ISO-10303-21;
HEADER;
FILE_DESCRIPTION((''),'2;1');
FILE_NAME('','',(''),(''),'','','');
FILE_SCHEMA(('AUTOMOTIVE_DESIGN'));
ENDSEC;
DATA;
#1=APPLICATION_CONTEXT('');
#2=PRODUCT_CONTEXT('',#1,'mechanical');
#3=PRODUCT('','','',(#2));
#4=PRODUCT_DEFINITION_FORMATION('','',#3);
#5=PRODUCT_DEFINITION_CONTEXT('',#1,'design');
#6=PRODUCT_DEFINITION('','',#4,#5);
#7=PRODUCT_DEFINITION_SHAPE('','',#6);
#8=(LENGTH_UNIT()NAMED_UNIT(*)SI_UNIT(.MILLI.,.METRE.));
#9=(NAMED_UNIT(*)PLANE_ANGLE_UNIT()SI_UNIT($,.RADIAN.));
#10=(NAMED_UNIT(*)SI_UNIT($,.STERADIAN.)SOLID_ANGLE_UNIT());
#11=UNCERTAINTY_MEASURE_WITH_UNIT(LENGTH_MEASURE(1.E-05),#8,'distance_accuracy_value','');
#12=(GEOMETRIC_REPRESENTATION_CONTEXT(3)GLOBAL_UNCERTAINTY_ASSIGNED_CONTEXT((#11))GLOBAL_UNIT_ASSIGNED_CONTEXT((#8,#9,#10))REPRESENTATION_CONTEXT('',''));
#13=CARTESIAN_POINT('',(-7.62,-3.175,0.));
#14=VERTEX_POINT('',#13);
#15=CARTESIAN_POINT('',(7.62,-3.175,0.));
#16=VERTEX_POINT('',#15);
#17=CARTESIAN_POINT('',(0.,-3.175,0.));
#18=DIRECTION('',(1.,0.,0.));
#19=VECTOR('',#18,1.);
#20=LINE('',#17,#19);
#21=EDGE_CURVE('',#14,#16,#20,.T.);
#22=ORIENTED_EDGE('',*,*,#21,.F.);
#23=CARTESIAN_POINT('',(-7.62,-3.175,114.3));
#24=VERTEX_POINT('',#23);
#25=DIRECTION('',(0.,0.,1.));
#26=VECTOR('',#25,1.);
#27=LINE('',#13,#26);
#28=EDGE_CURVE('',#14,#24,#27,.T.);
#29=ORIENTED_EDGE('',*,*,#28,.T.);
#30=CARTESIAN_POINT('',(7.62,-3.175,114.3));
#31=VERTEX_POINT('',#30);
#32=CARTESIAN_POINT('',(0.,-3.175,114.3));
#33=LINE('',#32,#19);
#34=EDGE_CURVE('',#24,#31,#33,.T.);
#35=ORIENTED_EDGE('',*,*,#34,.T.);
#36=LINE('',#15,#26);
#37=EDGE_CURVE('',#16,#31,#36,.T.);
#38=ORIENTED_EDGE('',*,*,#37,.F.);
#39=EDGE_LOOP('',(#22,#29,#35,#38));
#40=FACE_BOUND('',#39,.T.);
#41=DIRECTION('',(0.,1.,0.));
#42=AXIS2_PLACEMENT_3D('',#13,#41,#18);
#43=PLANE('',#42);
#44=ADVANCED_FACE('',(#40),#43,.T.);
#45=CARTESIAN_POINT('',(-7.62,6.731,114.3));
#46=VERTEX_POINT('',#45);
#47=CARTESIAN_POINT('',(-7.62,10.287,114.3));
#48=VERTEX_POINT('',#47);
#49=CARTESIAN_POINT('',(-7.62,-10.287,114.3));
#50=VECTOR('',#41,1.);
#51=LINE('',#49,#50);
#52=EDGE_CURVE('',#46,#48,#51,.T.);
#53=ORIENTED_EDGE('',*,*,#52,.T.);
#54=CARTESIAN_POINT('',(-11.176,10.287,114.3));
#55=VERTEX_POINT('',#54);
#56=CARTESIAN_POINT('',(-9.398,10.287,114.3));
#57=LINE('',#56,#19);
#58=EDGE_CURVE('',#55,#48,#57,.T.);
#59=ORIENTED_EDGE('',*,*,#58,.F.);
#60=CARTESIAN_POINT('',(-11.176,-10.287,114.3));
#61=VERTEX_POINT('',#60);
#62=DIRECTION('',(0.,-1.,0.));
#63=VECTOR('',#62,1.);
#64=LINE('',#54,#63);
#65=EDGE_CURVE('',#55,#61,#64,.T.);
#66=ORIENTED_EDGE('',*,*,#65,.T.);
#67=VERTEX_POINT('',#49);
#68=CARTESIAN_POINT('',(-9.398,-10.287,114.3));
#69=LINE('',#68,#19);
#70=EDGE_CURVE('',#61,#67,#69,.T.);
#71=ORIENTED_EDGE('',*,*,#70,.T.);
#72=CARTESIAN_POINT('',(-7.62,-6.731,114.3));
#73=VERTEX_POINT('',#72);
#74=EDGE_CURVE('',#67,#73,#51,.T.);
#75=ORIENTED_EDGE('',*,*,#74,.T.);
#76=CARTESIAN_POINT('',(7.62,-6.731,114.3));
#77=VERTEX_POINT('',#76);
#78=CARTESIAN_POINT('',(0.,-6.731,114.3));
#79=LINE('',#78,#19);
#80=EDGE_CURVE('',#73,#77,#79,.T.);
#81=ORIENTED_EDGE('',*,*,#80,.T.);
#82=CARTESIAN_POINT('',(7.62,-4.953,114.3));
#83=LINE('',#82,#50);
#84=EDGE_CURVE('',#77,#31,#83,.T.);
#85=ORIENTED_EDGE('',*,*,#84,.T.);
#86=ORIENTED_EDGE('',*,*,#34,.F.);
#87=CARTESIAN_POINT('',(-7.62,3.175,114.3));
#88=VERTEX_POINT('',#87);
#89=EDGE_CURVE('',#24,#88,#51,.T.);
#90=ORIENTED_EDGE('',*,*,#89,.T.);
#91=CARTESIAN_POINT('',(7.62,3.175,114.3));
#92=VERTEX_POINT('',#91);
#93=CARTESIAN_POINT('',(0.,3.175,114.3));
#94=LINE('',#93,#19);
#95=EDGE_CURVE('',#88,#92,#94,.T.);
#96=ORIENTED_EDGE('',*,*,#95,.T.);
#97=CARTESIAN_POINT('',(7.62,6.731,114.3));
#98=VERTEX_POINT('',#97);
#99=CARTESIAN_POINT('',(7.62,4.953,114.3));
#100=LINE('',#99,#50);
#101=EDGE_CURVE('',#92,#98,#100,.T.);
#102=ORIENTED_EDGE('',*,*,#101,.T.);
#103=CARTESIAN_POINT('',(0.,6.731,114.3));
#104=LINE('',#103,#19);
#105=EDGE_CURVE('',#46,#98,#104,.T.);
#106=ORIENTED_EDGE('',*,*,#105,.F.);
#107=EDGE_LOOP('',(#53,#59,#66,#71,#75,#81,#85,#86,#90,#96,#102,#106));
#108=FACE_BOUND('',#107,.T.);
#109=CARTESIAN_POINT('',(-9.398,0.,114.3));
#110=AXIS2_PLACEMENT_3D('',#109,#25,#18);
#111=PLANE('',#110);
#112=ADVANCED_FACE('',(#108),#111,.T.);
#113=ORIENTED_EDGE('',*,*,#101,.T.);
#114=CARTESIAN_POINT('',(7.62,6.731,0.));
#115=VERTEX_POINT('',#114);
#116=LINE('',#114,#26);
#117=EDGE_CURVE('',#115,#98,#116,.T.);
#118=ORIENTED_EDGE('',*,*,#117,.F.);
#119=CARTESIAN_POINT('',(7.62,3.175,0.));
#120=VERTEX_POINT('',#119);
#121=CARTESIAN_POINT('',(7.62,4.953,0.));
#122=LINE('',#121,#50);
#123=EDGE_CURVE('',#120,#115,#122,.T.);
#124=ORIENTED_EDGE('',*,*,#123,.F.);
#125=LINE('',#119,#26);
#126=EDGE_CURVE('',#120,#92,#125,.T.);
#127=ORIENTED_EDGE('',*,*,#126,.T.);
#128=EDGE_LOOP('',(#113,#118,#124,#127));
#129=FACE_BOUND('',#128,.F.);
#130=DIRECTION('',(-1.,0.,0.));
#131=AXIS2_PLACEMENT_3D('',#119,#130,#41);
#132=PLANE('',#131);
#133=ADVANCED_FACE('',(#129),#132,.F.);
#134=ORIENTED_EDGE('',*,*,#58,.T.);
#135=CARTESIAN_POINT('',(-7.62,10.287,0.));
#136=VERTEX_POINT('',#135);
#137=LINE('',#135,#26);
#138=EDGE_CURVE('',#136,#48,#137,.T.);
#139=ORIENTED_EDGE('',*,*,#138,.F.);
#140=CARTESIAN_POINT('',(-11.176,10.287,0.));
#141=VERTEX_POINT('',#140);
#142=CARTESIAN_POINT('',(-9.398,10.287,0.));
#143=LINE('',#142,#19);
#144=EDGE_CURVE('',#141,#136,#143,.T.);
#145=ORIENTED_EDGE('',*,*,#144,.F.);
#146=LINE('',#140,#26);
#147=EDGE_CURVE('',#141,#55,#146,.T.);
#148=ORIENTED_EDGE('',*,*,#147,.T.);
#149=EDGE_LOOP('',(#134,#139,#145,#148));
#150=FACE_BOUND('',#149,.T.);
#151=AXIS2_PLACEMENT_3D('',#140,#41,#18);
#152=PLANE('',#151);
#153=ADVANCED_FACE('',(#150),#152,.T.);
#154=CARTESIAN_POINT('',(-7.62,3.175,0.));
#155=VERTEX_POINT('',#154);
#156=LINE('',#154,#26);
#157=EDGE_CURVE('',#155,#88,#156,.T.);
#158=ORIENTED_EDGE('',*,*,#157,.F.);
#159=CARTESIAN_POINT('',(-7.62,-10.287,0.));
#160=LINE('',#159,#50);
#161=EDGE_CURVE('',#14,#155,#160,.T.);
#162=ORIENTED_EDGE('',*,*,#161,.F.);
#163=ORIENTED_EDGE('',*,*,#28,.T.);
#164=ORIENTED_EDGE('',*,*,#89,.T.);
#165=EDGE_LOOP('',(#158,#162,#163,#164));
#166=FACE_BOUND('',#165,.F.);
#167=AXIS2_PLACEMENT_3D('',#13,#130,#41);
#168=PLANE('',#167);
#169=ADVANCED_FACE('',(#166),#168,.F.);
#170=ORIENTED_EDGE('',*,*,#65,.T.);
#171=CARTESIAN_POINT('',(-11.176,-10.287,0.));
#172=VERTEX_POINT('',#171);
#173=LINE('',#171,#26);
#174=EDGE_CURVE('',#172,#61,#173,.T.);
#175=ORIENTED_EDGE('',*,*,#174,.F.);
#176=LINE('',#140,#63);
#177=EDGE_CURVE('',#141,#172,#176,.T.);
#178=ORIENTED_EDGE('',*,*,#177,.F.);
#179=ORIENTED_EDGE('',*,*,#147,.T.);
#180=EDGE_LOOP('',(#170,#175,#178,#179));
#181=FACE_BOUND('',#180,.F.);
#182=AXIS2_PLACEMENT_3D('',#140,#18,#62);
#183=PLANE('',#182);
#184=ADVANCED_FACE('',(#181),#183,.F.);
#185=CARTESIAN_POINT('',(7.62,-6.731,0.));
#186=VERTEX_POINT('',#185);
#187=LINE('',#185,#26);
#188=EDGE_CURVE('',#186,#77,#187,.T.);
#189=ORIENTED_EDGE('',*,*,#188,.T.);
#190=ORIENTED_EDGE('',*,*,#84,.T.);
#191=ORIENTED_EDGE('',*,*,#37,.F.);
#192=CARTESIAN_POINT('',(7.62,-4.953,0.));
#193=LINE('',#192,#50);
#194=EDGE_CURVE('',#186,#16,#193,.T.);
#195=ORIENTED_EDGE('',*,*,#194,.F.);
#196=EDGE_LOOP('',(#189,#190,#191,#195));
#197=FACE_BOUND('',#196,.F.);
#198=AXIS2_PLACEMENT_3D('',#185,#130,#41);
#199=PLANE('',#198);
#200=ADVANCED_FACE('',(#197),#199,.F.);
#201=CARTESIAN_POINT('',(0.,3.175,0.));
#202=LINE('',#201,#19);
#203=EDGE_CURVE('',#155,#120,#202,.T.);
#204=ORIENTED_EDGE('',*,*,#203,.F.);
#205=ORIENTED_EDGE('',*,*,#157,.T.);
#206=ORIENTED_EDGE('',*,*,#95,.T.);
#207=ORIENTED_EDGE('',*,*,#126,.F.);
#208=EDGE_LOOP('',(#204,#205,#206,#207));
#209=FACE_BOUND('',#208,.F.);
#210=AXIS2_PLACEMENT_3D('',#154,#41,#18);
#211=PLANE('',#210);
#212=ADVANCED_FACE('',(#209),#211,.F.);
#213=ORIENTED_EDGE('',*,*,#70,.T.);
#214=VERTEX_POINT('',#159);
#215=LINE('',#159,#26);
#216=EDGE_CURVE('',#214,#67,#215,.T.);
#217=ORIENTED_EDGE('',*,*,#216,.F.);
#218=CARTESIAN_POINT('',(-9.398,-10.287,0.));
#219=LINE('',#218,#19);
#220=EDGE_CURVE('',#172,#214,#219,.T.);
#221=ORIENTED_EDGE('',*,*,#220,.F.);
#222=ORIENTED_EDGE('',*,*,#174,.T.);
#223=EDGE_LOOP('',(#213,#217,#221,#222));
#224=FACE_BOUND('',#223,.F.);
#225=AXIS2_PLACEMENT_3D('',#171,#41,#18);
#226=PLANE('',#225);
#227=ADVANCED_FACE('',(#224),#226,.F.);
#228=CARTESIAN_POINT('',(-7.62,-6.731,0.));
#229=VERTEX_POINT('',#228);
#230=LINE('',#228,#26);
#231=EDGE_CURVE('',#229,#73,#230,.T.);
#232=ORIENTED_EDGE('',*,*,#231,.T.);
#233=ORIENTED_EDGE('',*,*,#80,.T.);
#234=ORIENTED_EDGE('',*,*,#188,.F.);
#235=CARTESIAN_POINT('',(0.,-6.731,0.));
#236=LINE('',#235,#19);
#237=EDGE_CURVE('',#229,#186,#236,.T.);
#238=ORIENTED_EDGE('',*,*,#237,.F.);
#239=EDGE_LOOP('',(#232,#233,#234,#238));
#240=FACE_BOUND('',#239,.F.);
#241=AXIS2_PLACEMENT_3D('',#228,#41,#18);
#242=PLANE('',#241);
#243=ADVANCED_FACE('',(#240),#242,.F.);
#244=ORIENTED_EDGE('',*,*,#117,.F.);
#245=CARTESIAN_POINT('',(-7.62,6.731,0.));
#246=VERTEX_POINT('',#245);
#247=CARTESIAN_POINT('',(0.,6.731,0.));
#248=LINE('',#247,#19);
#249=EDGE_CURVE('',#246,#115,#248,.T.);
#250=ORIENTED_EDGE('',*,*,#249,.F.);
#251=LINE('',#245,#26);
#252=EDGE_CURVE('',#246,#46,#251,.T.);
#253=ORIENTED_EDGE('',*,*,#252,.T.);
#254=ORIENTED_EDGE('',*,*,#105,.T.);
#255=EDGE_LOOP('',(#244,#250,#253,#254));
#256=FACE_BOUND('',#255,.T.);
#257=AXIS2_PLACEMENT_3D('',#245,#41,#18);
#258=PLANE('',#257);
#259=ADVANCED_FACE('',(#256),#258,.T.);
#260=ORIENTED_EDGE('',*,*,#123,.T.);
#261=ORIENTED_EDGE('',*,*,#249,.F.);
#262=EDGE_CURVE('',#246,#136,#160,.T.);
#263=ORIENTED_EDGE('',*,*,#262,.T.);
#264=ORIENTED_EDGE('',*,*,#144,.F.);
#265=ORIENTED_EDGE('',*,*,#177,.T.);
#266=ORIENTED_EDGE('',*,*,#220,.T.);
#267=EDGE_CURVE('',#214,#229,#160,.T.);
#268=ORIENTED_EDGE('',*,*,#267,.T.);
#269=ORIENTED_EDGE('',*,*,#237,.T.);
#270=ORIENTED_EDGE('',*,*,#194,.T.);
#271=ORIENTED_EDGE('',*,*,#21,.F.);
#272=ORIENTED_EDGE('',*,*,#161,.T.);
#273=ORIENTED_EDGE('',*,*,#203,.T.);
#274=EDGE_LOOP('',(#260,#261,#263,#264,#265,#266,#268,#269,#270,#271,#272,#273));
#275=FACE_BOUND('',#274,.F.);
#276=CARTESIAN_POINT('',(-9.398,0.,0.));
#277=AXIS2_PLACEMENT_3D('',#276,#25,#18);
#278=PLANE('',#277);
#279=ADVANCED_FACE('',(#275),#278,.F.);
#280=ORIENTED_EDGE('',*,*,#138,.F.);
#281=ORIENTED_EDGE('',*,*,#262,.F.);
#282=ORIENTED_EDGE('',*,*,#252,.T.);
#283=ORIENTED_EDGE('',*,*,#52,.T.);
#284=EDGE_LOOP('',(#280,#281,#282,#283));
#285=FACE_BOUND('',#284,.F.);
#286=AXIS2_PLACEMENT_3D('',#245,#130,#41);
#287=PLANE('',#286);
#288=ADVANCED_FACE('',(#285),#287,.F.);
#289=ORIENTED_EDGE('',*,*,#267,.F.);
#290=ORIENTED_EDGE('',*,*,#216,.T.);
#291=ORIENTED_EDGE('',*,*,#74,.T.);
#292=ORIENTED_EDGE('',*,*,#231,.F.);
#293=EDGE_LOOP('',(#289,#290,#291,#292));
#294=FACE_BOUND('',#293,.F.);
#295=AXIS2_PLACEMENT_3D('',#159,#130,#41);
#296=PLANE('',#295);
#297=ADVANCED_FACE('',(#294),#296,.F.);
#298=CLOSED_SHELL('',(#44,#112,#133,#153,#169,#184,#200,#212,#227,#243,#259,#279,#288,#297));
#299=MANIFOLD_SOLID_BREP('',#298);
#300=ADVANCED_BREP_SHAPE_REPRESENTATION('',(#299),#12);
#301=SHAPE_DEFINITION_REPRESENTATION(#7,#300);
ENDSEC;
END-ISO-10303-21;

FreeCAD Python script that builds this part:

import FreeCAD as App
import Part
import Sketcher
from FreeCAD import Vector
Q = App.Units.Quantity


def add_polygon(sketch, points):
    """Adds a closed chain of lines whose ends are joined by coincident constraints."""
    first, n = sketch.GeometryCount, len(points)
    for a, b in zip(points, points[1:] + points[:1]):
        sketch.addGeometry(Part.LineSegment(App.Vector(*a, 0), App.Vector(*b, 0)), False)
    for i in range(n):
        sketch.addConstraint(Sketcher.Constraint("Coincident", first + i, 2, first + (i + 1) % n, 1))

doc = App.newDocument("Part")
body = doc.addObject("PartDesign::Body", "Body")

# Sketch on XY plane
sketch1 = body.newObject("Sketcher::SketchObject", "Sketch")
sketch1.AttachmentSupport = (doc.getObject("XY_Plane"), [""])
sketch1.MapMode = "FlatFace"
add_polygon(sketch1, [(-7.6, 10.3), (-11.2, 10.3), (-11.2, -10.3), (-7.6, -10.3), (-7.6, -6.7), (7.6, -6.7), (7.6, -3.2), (-7.6, -3.2), (-7.6, 3.2), (7.6, 3.2), (7.6, 6.7), (-7.6, 6.7)])  # lines 0-11
sketch1.addConstraint([
    Sketcher.Constraint("Horizontal", 0),
    Sketcher.Constraint("Vertical", 1),
    Sketcher.Constraint("Horizontal", 2),
    Sketcher.Constraint("Vertical", 3),
    Sketcher.Constraint("Horizontal", 4),
    Sketcher.Constraint("Vertical", 5),
    Sketcher.Constraint("Horizontal", 6),
    Sketcher.Constraint("Vertical", 7),
    Sketcher.Constraint("Horizontal", 8),
    Sketcher.Constraint("Vertical", 9),
    Sketcher.Constraint("Horizontal", 10),
    Sketcher.Constraint("Vertical", 11),
    Sketcher.Constraint("Symmetric", 5, 2, 7, 2, -1, 1),
    Sketcher.Constraint("Symmetric", 3, 2, 9, 2, -1, 1),
    Sketcher.Constraint("Symmetric", 2, 2, 11, 2, -1),
    Sketcher.Constraint("Vertical", 3, 2, 6, 2),
    Sketcher.Constraint("Equal", 2, 3),
    Sketcher.Constraint("Equal", 3, 5),
    Sketcher.Constraint("DistanceX", 4, 1, 4, 2, Q("0.6 in")),
    Sketcher.Constraint("DistanceX", 0, 2, 0, 1, Q("0.14 in")),
    Sketcher.Constraint("DistanceY", 1, 2, 1, 1, Q("0.81 in")),
])
pad1 = body.newObject("PartDesign::Pad", "Pad")
pad1.Profile = sketch1
pad1.Length = Q("4.5 in")

doc.recompute()
